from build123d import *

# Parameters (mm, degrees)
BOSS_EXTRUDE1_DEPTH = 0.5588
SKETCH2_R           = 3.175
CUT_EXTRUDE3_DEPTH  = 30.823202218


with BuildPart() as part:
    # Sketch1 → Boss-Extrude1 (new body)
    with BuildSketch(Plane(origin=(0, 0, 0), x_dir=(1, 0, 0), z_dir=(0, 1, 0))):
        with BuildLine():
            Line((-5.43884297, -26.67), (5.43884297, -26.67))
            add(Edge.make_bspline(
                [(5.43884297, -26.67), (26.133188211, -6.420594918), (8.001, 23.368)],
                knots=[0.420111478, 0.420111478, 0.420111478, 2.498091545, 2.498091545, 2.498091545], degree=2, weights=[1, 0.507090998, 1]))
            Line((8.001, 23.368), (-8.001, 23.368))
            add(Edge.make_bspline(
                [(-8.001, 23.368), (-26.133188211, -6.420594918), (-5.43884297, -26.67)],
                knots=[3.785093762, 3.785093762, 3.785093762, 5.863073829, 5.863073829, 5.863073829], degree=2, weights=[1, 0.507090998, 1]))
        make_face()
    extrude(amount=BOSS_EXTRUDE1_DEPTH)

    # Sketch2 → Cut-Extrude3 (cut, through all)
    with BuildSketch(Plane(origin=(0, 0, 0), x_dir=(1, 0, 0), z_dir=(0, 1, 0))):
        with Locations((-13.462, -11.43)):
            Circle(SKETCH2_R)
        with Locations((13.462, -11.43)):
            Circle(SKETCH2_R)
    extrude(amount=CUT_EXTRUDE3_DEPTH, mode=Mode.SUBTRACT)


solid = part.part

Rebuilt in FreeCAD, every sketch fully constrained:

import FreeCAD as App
import Part
import Sketcher

V = App.Vector
Q = App.Units.Quantity

doc = App.newDocument("Part")
body = doc.addObject("PartDesign::Body", "Body")

sketch1 = body.newObject("Sketcher::SketchObject", "Sketch")
sketch1.AttachmentSupport = (doc.getObject("XZ_Plane"), [""])
sketch1.MapMode = "FlatFace"
sketch1.addGeometry(Part.LineSegment(V(-5.438843, 26.67, 0), V(5.438843, 26.67, 0)), False)
sketch1.addGeometry(Part.BSplineCurve([V(5.438843, 26.67, 0), V(26.133188, 6.420595, 0), V(8.001, -23.368, 0)], [3, 3], [0.420111478, 2.498091545], False, 2, [1, 0.507090998, 1], False), False)
sketch1.addGeometry(Part.LineSegment(V(8.001, -23.368, 0), V(-8.001, -23.368, 0)), False)
sketch1.addGeometry(Part.BSplineCurve([V(-8.001, -23.368, 0), V(-26.133188, 6.420595, 0), V(-5.438843, 26.67, 0)], [3, 3], [3.785093762, 5.863073829], False, 2, [1, 0.507090998, 1], False), False)
sketch1.addConstraint(Sketcher.Constraint("Block", 1))
sketch1.addConstraint(Sketcher.Constraint("Block", 3))
sketch1.addConstraint(Sketcher.Constraint("Coincident", 0, 2, 1, 1))
sketch1.addConstraint(Sketcher.Constraint("Coincident", 1, 2, 2, 1))
sketch1.addConstraint(Sketcher.Constraint("Coincident", 2, 2, 3, 1))
sketch1.addConstraint(Sketcher.Constraint("Coincident", 3, 2, 0, 1))
pad1 = body.newObject("PartDesign::Pad", "Pad")
pad1.Profile = sketch1
pad1.Length = Q("0.022 in")
pad1.Reversed = True

sketch2 = body.newObject("Sketcher::SketchObject", "Sketch001")
sketch2.AttachmentSupport = (doc.getObject("XZ_Plane"), [""])
sketch2.MapMode = "FlatFace"
sketch2.addGeometry(Part.Circle(V(-13.5, 11.4, 0), V(0, 0, 1), 3.2), False)
sketch2.addGeometry(Part.Circle(V(13.5, 11.4, 0), V(0, 0, 1), 3.2), False)
sketch2.addConstraint(Sketcher.Constraint("Equal", 0, 1))
sketch2.addConstraint(Sketcher.Constraint("Symmetric", 0, 3, 1, 3, -2))
sketch2.addConstraint(Sketcher.Constraint("Diameter", 0, Q("0.25 in")))
sketch2.addConstraint(Sketcher.Constraint("DistanceX", 0, 3, -1, 1, Q("0.53 in")))
sketch2.addConstraint(Sketcher.Constraint("DistanceY", -1, 1, 0, 3, Q("0.45 in")))
pocket1 = body.newObject("PartDesign::Pocket", "Pocket")
pocket1.Profile = sketch2
pocket1.Type = "ThroughAll"

doc.recompute()
